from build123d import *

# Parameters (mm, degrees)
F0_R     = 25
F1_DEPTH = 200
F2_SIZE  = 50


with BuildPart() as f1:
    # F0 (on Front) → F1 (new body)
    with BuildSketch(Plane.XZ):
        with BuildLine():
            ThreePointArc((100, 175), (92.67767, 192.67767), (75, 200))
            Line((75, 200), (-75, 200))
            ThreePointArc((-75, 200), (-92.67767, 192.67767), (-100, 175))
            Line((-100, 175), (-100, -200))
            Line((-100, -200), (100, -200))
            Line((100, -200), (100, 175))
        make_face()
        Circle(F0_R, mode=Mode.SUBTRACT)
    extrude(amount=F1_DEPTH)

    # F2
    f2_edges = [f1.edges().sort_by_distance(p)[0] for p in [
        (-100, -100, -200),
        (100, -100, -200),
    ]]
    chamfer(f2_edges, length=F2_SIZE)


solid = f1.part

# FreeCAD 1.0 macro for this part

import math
import FreeCAD as App
import Part
import Sketcher
from FreeCAD import Vector


def edges_at(feature, points):
    """Names of the edges that pass closest to the given points."""
    edges = feature.Shape.Edges
    near = lambda p: min(range(len(edges)), key=lambda i: edges[i].distToShape(Part.Vertex(*p))[0])
    return sorted({f"Edge{near(p) + 1}" for p in points})

doc = App.newDocument("Part")
body = doc.addObject("PartDesign::Body", "Body")

# Sketch on XZ plane
sketch1 = body.newObject("Sketcher::SketchObject", "Sketch")
sketch1.AttachmentSupport = (doc.getObject("XZ_Plane"), [""])
sketch1.MapMode = "FlatFace"
sketch1.addGeometry([
    Part.ArcOfCircle(Part.Circle(Vector(75, 175, 0), Vector(0, 0, 1), 25), math.radians(0), math.radians(90)),  # 0
    Part.LineSegment(Vector(75, 200, 0), Vector(-75, 200, 0)),  # 1
    Part.ArcOfCircle(Part.Circle(Vector(-75, 175, 0), Vector(0, 0, 1), 25), math.radians(90), math.radians(180)),  # 2
    Part.LineSegment(Vector(-100, 175, 0), Vector(-100, -200, 0)),  # 3
    Part.LineSegment(Vector(-100, -200, 0), Vector(100, -200, 0)),  # 4
    Part.LineSegment(Vector(100, -200, 0), Vector(100, 175, 0)),  # 5
    Part.Circle(Vector(0, 0, 0), Vector(0, 0, 1), 25),  # 6
], False)
sketch1.addConstraint([
    Sketcher.Constraint("Tangent", 0, 2, 1, 1),
    Sketcher.Constraint("Tangent", 1, 2, 2, 1),
    Sketcher.Constraint("Tangent", 2, 2, 3, 1),
    Sketcher.Constraint("Coincident", 3, 2, 4, 1),
    Sketcher.Constraint("Coincident", 4, 2, 5, 1),
    Sketcher.Constraint("Tangent", 5, 2, 0, 1),
    Sketcher.Constraint("Horizontal", 1),
    Sketcher.Constraint("Vertical", 3),
    Sketcher.Constraint("Horizontal", 4),
    Sketcher.Constraint("Vertical", 5),
    Sketcher.Constraint("Coincident", 6, 3, -1, 1),
    Sketcher.Constraint("Equal", 0, 2),
    Sketcher.Constraint("Equal", 2, 6),
    Sketcher.Constraint("Diameter", 6, 50.0),
    Sketcher.Constraint("DistanceX", 1, 2, 1, 1, 150.0),
    Sketcher.Constraint("DistanceY", 3, 2, 3, 1, 375.0),
    Sketcher.Constraint("DistanceX", -1, 1, 0, 3, 75.000002),
    Sketcher.Constraint("DistanceY", -1, 1, 0, 3, 175.000002),
])
pad1 = body.newObject("PartDesign::Pad", "Pad")
pad1.Profile = sketch1
pad1.Length = 200
doc.recompute()

chamfer = body.newObject("PartDesign::Chamfer", "Chamfer")
chamfer.Base = (pad1, edges_at(pad1, [(-100, -100, -200), (100, -100, -200)]))
chamfer.Size = 50

doc.recompute()
